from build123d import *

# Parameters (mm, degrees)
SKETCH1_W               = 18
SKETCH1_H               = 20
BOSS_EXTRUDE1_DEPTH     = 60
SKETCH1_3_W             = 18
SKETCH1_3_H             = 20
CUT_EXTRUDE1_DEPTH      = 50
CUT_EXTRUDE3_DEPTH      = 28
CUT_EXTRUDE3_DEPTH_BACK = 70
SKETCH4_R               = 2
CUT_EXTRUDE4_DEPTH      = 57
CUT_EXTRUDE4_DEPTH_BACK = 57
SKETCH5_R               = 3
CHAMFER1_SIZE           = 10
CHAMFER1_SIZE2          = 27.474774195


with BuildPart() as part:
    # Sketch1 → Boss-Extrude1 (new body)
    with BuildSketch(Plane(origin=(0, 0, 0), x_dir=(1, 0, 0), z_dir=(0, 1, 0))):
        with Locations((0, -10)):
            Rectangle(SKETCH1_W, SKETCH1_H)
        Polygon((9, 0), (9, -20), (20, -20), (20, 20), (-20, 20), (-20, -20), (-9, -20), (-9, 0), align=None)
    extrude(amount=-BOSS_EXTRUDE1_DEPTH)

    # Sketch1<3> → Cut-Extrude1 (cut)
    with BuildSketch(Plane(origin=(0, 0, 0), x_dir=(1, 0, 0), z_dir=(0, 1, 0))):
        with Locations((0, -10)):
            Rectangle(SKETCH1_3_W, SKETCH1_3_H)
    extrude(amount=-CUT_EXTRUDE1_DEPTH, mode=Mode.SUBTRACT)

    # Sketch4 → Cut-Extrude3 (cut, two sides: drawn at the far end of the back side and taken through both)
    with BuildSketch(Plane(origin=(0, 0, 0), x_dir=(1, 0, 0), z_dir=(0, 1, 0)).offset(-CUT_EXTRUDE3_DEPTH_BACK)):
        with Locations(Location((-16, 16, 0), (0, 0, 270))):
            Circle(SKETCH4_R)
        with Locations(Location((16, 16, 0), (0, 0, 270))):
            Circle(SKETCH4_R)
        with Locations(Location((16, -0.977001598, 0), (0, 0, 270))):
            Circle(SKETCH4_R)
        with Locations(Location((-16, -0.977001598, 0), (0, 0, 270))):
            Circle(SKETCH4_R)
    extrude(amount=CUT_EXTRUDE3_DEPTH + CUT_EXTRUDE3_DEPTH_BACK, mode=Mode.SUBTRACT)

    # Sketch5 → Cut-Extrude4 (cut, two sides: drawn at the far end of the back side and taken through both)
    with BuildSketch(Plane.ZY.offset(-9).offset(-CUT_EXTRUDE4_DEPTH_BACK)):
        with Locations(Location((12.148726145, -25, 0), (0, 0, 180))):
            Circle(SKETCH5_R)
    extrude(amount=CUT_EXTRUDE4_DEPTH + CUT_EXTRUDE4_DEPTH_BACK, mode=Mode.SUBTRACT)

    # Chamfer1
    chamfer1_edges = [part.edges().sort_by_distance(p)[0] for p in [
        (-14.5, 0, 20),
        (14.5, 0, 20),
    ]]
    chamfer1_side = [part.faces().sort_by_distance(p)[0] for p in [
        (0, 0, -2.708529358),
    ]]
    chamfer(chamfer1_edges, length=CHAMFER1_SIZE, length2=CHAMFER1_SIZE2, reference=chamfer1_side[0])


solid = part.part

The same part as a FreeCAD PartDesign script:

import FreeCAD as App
import Part
import Sketcher


def edges_at(feature, points):
    """Names of the edges that pass closest to the given points."""
    edges = feature.Shape.Edges
    near = lambda p: min(range(len(edges)), key=lambda i: edges[i].distToShape(Part.Vertex(*p))[0])
    return sorted({f"Edge{near(p) + 1}" for p in points})

doc = App.newDocument("Part")
body = doc.addObject("PartDesign::Body", "Body")

sketch1 = doc.addObject("Sketcher::SketchObject", "Sketch")
body.addObject(sketch1)
sketch1.AttachmentSupport = (doc.XZ_Plane, [""])
sketch1.MapMode = "FlatFace"
sketch1.addGeometry([
    Part.LineSegment(App.Vector(20, 20, 0), App.Vector(20, -20, 0)),
    Part.LineSegment(App.Vector(20, -20, 0), App.Vector(-20, -20, 0)),
    Part.LineSegment(App.Vector(-20, -20, 0), App.Vector(-20, 20, 0)),
    Part.LineSegment(App.Vector(-20, 20, 0), App.Vector(20, 20, 0)),
], False)
sketch1.addConstraint([
    Sketcher.Constraint("Coincident", 0, 2, 1, 1),
    Sketcher.Constraint("Coincident", 1, 2, 2, 1),
    Sketcher.Constraint("Coincident", 2, 2, 3, 1),
    Sketcher.Constraint("Coincident", 3, 2, 0, 1),
    Sketcher.Constraint("Vertical", 0),
    Sketcher.Constraint("Horizontal", 1),
    Sketcher.Constraint("Vertical", 2),
    Sketcher.Constraint("Horizontal", 3),
    Sketcher.Constraint("Symmetric", 0, 2, 2, 2, -1, 1),
    Sketcher.Constraint("Equal", 3, 0),
    Sketcher.Constraint("DistanceX", 1, 2, 1, 1, 40.0),
])
pad1 = doc.addObject("PartDesign::Pad", "Pad")
body.addObject(pad1)
pad1.Profile = sketch1
pad1.Length = 60

sketch2 = doc.addObject("Sketcher::SketchObject", "Sketch001")
body.addObject(sketch2)
sketch2.AttachmentSupport = (doc.XZ_Plane, [""])
sketch2.MapMode = "FlatFace"
sketch2.addGeometry([
    Part.LineSegment(App.Vector(-9, 0, 0), App.Vector(-9, 20, 0)),
    Part.LineSegment(App.Vector(-9, 20, 0), App.Vector(9, 20, 0)),
    Part.LineSegment(App.Vector(9, 20, 0), App.Vector(9, 0, 0)),
    Part.LineSegment(App.Vector(9, 0, 0), App.Vector(-9, 0, 0)),
], False)
sketch2.addConstraint([
    Sketcher.Constraint("Coincident", 0, 2, 1, 1),
    Sketcher.Constraint("Coincident", 1, 2, 2, 1),
    Sketcher.Constraint("Coincident", 2, 2, 3, 1),
    Sketcher.Constraint("Coincident", 3, 2, 0, 1),
    Sketcher.Constraint("Vertical", 0),
    Sketcher.Constraint("Horizontal", 1),
    Sketcher.Constraint("Vertical", 2),
    Sketcher.Constraint("Horizontal", 3),
    Sketcher.Constraint("Symmetric", 2, 2, 3, 2, -1, 1),
    Sketcher.Constraint("DistanceX", 1, 1, 1, 2, 18.0),
    Sketcher.Constraint("DistanceY", 0, 1, 0, 2, 20.0),
])
pocket1 = doc.addObject("PartDesign::Pocket", "Pocket")
body.addObject(pocket1)
pocket1.Profile = sketch2
pocket1.Length = 50
pocket1.Reversed = True

sketch3 = doc.addObject("Sketcher::SketchObject", "Sketch002")
body.addObject(sketch3)
sketch3.AttachmentSupport = (doc.XZ_Plane, [""])
sketch3.MapMode = "FlatFace"
sketch3.addGeometry([
    Part.Circle(App.Vector(-16, -16, 0), App.Vector(0, 0, 1), 2),
    Part.Circle(App.Vector(16, -16, 0), App.Vector(0, 0, 1), 2),
    Part.Circle(App.Vector(16, 1, 0), App.Vector(0, 0, 1), 2),
    Part.Circle(App.Vector(-16, 1, 0), App.Vector(0, 0, 1), 2),
], False)
sketch3.addConstraint([
    Sketcher.Constraint("Equal", 0, 1),
    Sketcher.Constraint("Equal", 1, 2),
    Sketcher.Constraint("Equal", 2, 3),
    Sketcher.Constraint("Symmetric", 0, 3, 1, 3, -2),
    Sketcher.Constraint("Symmetric", 2, 3, 3, 3, -2),
    Sketcher.Constraint("Vertical", 1, 3, 2, 3),
    Sketcher.Constraint("Diameter", 0, 4.0),
    Sketcher.Constraint("DistanceX", 0, 3, -1, 1, 16.0),
    Sketcher.Constraint("DistanceY", 0, 3, -1, 1, 16.0),
    Sketcher.Constraint("DistanceY", -1, 1, 2, 3, 0.977002),
])
pocket2 = doc.addObject("PartDesign::Pocket", "Pocket001")
body.addObject(pocket2)
pocket2.Profile = sketch3
pocket2.Type = "ThroughAll"
pocket2.Midplane = True

sketch4 = doc.addObject("Sketcher::SketchObject", "Sketch003")
body.addObject(sketch4)
sketch4.AttachmentSupport = (doc.YZ_Plane, [""])
sketch4.MapMode = "FlatFace"
sketch4.AttachmentOffset = App.Placement(App.Vector(0, 0, 9), App.Rotation())
sketch4.addGeometry(Part.Circle(App.Vector(-25, 12.1, 0), App.Vector(0, 0, 1), 3), False)
sketch4.addConstraint([
    Sketcher.Constraint("Diameter", 0, 6.0),
    Sketcher.Constraint("DistanceX", 0, 3, -1, 1, 25.0),
    Sketcher.Constraint("DistanceY", -1, 1, 0, 3, 12.148726),
])
pocket3 = doc.addObject("PartDesign::Pocket", "Pocket002")
body.addObject(pocket3)
pocket3.Profile = sketch4
pocket3.Type = "ThroughAll"
pocket3.Midplane = True
doc.recompute()

chamfer = doc.addObject("PartDesign::Chamfer", "Chamfer")
body.addObject(chamfer)
chamfer.Base = (pocket3, edges_at(pocket3, [(-14.5, 0, 20), (14.5, 0, 20)]))
chamfer.ChamferType = "Two distances"
chamfer.Size = 10
chamfer.Size2 = 27.474774
chamfer.FlipDirection = True

doc.recompute()
